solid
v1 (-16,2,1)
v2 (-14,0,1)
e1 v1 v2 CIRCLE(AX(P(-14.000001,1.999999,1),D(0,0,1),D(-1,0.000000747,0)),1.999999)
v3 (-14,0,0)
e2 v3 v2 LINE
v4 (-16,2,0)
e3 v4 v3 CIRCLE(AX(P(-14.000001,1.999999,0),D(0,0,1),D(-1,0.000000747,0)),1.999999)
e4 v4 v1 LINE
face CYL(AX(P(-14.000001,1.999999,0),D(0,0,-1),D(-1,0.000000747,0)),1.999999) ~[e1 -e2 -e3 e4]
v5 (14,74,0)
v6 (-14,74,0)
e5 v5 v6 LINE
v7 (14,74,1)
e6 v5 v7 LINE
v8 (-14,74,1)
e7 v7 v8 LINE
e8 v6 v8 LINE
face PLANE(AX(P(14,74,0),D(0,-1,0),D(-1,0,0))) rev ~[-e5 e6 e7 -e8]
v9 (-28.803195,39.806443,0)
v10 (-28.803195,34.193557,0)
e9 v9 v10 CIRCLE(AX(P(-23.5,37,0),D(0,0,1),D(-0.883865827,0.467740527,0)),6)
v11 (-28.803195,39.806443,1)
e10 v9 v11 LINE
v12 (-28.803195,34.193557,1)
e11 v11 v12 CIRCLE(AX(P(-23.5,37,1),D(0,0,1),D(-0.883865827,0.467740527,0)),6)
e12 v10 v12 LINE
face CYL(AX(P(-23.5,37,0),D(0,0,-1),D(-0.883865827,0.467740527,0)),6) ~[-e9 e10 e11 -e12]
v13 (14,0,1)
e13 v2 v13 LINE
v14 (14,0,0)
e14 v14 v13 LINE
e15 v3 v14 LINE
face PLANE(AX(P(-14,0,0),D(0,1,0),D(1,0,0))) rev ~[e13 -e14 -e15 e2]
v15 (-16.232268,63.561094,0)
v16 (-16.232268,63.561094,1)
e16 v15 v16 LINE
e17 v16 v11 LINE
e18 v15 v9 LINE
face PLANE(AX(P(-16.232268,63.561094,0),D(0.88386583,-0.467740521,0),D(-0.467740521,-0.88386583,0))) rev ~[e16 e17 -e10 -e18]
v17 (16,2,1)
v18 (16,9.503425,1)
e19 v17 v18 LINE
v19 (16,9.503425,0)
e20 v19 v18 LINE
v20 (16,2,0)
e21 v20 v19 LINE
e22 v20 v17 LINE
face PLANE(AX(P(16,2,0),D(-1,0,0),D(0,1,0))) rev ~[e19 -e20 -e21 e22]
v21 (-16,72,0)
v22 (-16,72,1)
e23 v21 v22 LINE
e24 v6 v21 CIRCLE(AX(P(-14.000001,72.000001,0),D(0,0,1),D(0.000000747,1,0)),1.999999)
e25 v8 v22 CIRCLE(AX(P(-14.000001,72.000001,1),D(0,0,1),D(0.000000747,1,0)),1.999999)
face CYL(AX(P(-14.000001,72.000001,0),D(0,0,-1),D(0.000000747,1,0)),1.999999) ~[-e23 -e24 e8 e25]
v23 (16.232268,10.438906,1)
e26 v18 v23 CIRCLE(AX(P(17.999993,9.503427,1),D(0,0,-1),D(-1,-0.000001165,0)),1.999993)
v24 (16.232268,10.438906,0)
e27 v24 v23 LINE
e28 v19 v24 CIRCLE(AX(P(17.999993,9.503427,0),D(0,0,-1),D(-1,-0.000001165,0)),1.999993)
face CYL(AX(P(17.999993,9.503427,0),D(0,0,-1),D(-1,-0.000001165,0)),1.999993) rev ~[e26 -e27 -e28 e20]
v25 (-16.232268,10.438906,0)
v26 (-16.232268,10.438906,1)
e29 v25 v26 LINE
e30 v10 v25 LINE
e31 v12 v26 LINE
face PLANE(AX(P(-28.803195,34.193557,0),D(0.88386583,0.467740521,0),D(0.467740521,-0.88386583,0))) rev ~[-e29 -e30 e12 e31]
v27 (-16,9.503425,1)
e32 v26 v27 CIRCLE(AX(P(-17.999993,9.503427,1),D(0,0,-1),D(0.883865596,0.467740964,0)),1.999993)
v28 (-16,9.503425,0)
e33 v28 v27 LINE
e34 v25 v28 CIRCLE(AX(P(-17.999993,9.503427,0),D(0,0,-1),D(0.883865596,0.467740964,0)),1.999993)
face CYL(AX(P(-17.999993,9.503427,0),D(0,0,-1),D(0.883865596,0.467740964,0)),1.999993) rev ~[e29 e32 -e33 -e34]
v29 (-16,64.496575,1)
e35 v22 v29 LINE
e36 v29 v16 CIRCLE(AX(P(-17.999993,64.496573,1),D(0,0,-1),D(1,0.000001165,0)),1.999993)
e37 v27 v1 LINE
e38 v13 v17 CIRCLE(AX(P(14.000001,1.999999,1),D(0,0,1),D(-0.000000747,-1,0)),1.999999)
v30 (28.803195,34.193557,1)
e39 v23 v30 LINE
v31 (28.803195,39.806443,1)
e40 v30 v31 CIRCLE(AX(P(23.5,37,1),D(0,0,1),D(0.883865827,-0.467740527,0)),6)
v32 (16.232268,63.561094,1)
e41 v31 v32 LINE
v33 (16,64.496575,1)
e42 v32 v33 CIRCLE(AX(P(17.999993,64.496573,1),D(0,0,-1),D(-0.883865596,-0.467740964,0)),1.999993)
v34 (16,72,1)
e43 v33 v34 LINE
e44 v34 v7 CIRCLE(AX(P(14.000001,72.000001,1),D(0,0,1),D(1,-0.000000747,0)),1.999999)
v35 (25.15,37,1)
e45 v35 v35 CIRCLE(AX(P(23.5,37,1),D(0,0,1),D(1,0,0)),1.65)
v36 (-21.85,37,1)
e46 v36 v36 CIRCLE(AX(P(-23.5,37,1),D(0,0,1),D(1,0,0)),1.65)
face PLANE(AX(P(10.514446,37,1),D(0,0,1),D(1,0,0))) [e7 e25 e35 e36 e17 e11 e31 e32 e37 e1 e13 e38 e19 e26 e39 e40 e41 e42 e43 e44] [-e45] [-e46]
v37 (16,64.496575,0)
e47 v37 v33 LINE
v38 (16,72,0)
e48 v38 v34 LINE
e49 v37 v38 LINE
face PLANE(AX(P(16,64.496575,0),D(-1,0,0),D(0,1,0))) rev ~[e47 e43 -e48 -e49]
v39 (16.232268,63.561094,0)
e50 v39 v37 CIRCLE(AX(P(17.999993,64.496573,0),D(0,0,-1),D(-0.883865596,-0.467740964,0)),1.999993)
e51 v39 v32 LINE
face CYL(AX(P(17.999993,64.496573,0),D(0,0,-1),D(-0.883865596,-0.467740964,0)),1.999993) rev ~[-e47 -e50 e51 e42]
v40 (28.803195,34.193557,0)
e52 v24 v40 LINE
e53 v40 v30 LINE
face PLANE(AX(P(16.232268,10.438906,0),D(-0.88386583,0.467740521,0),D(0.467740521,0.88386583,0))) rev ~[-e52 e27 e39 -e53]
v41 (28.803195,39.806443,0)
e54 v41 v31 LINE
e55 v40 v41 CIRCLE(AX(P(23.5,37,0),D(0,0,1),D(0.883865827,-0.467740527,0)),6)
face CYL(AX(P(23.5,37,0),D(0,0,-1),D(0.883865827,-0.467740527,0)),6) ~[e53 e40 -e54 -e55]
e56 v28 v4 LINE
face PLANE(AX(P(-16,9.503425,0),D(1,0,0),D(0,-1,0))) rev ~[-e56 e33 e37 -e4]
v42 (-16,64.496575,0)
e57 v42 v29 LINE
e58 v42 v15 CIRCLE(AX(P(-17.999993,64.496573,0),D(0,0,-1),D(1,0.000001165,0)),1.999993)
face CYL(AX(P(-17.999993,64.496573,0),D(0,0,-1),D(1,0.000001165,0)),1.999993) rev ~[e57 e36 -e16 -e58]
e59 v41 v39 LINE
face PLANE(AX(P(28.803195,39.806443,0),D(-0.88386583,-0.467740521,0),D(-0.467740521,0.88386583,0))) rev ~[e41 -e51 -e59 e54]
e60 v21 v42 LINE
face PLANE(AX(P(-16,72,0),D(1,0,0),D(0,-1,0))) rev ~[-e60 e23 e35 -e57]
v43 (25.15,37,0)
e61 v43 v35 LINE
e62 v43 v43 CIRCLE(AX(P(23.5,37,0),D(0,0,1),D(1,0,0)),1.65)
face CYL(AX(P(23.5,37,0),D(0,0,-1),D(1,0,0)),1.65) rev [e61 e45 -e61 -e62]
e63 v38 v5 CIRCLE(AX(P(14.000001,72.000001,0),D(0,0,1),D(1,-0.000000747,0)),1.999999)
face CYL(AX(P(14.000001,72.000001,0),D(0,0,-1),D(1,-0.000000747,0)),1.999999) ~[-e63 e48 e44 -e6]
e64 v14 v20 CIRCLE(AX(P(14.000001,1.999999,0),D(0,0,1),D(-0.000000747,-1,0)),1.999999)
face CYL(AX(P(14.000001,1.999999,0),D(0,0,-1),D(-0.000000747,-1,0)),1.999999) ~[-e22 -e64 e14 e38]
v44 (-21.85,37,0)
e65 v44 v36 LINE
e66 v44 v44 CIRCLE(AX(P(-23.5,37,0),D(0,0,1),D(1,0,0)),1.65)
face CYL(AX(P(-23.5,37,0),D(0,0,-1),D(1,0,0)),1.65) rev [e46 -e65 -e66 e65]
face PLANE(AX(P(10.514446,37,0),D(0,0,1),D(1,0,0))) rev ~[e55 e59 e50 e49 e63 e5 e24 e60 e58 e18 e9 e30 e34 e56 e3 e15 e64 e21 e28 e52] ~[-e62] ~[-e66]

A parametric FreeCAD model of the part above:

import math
import FreeCAD as App
import Part
import Sketcher
from FreeCAD import Vector

doc = App.newDocument("Part")
body = doc.addObject("PartDesign::Body", "Body")

# Sketch on XY plane
sketch1 = doc.addObject("Sketcher::SketchObject", "Sketch")
body.addObject(sketch1)
sketch1.AttachmentSupport = (doc.XY_Plane, [""])
sketch1.MapMode = "FlatFace"
sketch1.addGeometry(Part.LineSegment(Vector(14, 74, 0), Vector(-14, 74, 0)), False)
sketch1.addGeometry(Part.ArcOfCircle(Part.Circle(Vector(-14.000001, 72.000001, 0), Vector(0, 0, 1), 1.999999), math.radians(89.999957), math.radians(180.000043)), False)
sketch1.addGeometry(Part.LineSegment(Vector(-16, 72, 0), Vector(-16, 64.496575, 0)), False)
sketch1.addGeometry(Part.ArcOfCircle(Part.Circle(Vector(-17.999993, 64.496573, 0), Vector(0, 0, 1), 1.999993), math.radians(-27.887757), math.radians(0.000067)), False)
sketch1.addGeometry(Part.LineSegment(Vector(-16.232268, 63.561094, 0), Vector(-28.803195, 39.806443, 0)), False)
sketch1.addGeometry(Part.ArcOfCircle(Part.Circle(Vector(-23.5, 37, 0), Vector(0, 0, 1), 6), math.radians(152.112271), math.radians(207.887729)), False)
sketch1.addGeometry(Part.LineSegment(Vector(-28.803195, 34.193557, 0), Vector(-16.232268, 10.438906, 0)), False)
sketch1.addGeometry(Part.ArcOfCircle(Part.Circle(Vector(-17.999993, 9.503427, 0), Vector(0, 0, 1), 1.999993), math.radians(-0.000067), math.radians(27.887757)), False)
sketch1.addGeometry(Part.LineSegment(Vector(-16, 9.503425, 0), Vector(-16, 2, 0)), False)
sketch1.addGeometry(Part.ArcOfCircle(Part.Circle(Vector(-14.000001, 1.999999, 0), Vector(0, 0, 1), 1.999999), math.radians(179.999957), math.radians(270.000043)), False)
sketch1.addGeometry(Part.LineSegment(Vector(-14, 0, 0), Vector(14, 0, 0)), False)
sketch1.addGeometry(Part.ArcOfCircle(Part.Circle(Vector(14.000001, 1.999999, 0), Vector(0, 0, 1), 1.999999), math.radians(-90.000043), math.radians(0.000043)), False)
sketch1.addGeometry(Part.LineSegment(Vector(16, 2, 0), Vector(16, 9.503425, 0)), False)
sketch1.addGeometry(Part.ArcOfCircle(Part.Circle(Vector(17.999993, 9.503427, 0), Vector(0, 0, 1), 1.999993), math.radians(152.112243), math.radians(180.000067)), False)
sketch1.addGeometry(Part.LineSegment(Vector(16.232268, 10.438906, 0), Vector(28.803195, 34.193557, 0)), False)
sketch1.addGeometry(Part.ArcOfCircle(Part.Circle(Vector(23.5, 37, 0), Vector(0, 0, 1), 6), math.radians(-27.887729), math.radians(27.887729)), False)
sketch1.addGeometry(Part.LineSegment(Vector(28.803195, 39.806443, 0), Vector(16.232268, 63.561094, 0)), False)
sketch1.addGeometry(Part.ArcOfCircle(Part.Circle(Vector(17.999993, 64.496573, 0), Vector(0, 0, 1), 1.999993), math.radians(179.999933), math.radians(207.887757)), False)
sketch1.addGeometry(Part.LineSegment(Vector(16, 64.496575, 0), Vector(16, 72, 0)), False)
sketch1.addGeometry(Part.ArcOfCircle(Part.Circle(Vector(14.000001, 72.000001, 0), Vector(0, 0, 1), 1.999999), math.radians(-0.000043), math.radians(90.000043)), False)
sketch1.addGeometry(Part.Circle(Vector(-23.5, 37, 0), Vector(0, 0, 1), 1.65), False)
sketch1.addGeometry(Part.Circle(Vector(23.5, 37, 0), Vector(0, 0, 1), 1.65), False)
sketch1.addConstraint(Sketcher.Constraint("Coincident", 0, 2, 1, 1))
sketch1.addConstraint(Sketcher.Constraint("Coincident", 1, 2, 2, 1))
sketch1.addConstraint(Sketcher.Constraint("Coincident", 2, 2, 3, 2))
sketch1.addConstraint(Sketcher.Constraint("Coincident", 3, 1, 4, 1))
sketch1.addConstraint(Sketcher.Constraint("Coincident", 4, 2, 5, 1))
sketch1.addConstraint(Sketcher.Constraint("Coincident", 5, 2, 6, 1))
sketch1.addConstraint(Sketcher.Constraint("Coincident", 6, 2, 7, 2))
sketch1.addConstraint(Sketcher.Constraint("Coincident", 7, 1, 8, 1))
sketch1.addConstraint(Sketcher.Constraint("Coincident", 8, 2, 9, 1))
sketch1.addConstraint(Sketcher.Constraint("Coincident", 9, 2, 10, 1))
sketch1.addConstraint(Sketcher.Constraint("Coincident", 10, 2, 11, 1))
sketch1.addConstraint(Sketcher.Constraint("Coincident", 11, 2, 12, 1))
sketch1.addConstraint(Sketcher.Constraint("Coincident", 12, 2, 13, 2))
sketch1.addConstraint(Sketcher.Constraint("Coincident", 13, 1, 14, 1))
sketch1.addConstraint(Sketcher.Constraint("Coincident", 14, 2, 15, 1))
sketch1.addConstraint(Sketcher.Constraint("Coincident", 15, 2, 16, 1))
sketch1.addConstraint(Sketcher.Constraint("Coincident", 16, 2, 17, 2))
sketch1.addConstraint(Sketcher.Constraint("Coincident", 17, 1, 18, 1))
sketch1.addConstraint(Sketcher.Constraint("Coincident", 18, 2, 19, 1))
sketch1.addConstraint(Sketcher.Constraint("Coincident", 19, 2, 0, 1))
sketch1.addConstraint(Sketcher.Constraint("Horizontal", 0))
sketch1.addConstraint(Sketcher.Constraint("Vertical", 2))
sketch1.addConstraint(Sketcher.Constraint("Vertical", 8))
sketch1.addConstraint(Sketcher.Constraint("Horizontal", 10))
sketch1.addConstraint(Sketcher.Constraint("Vertical", 12))
sketch1.addConstraint(Sketcher.Constraint("Vertical", 18))
sketch1.addConstraint(Sketcher.Constraint("Coincident", 20, 3, 5, 3))
sketch1.addConstraint(Sketcher.Constraint("Coincident", 21, 3, 15, 3))
sketch1.addConstraint(Sketcher.Constraint("PointOnObject", 9, 2, -1))
sketch1.addConstraint(Sketcher.Constraint("Radius", 1, 1.999999))
sketch1.addConstraint(Sketcher.Constraint("Radius", 5, 6.0))
sketch1.addConstraint(Sketcher.Constraint("Radius", 9, 1.999999))
sketch1.addConstraint(Sketcher.Constraint("Radius", 11, 1.999999))
sketch1.addConstraint(Sketcher.Constraint("Radius", 15, 6.0))
sketch1.addConstraint(Sketcher.Constraint("Radius", 19, 1.999999))
sketch1.addConstraint(Sketcher.Constraint("Diameter", 20, 3.3))
sketch1.addConstraint(Sketcher.Constraint("Diameter", 21, 3.3))
sketch1.addConstraint(Sketcher.Constraint("DistanceX", 0, 2, 0, 1, 28.0))
sketch1.addConstraint(Sketcher.Constraint("DistanceX", 10, 1, 10, 2, 28.0))
sketch1.addConstraint(Sketcher.Constraint("DistanceX", 1, 3, -1, 1, 14.000001))
sketch1.addConstraint(Sketcher.Constraint("DistanceY", -1, 1, 1, 3, 72.000001))
sketch1.addConstraint(Sketcher.Constraint("DistanceY", -1, 1, 5, 3, 37.0))
sketch1.addConstraint(Sketcher.Constraint("DistanceX", 9, 3, -1, 1, 14.000001))
sketch1.addConstraint(Sketcher.Constraint("DistanceX", -1, 1, 11, 3, 14.000001))
sketch1.addConstraint(Sketcher.Constraint("DistanceY", -1, 1, 15, 3, 37.0))
sketch1.addConstraint(Sketcher.Constraint("DistanceX", -1, 1, 19, 3, 14.000001))
sketch1.addConstraint(Sketcher.Constraint("DistanceX", 0, 2, -1, 1, 14.0))
sketch1.addConstraint(Sketcher.Constraint("DistanceY", -1, 1, 1, 2, 72.0))
sketch1.addConstraint(Sketcher.Constraint("DistanceY", -1, 1, 8, 2, 2.0))
sketch1.addConstraint(Sketcher.Constraint("DistanceX", 9, 2, -1, 1, 14.0))
sketch1.addConstraint(Sketcher.Constraint("DistanceY", -1, 1, 11, 2, 2.0))
sketch1.addConstraint(Sketcher.Constraint("DistanceY", -1, 1, 18, 2, 72.0))
sketch1.addConstraint(Sketcher.Constraint("DistanceX", 5, 3, 15, 3, 47.000001))
sketch1.addConstraint(Sketcher.Constraint("DistanceX", 5, 3, -1, 1, 23.5))
sketch1.addConstraint(Sketcher.Constraint("Radius", 3, 1.999993))
sketch1.addConstraint(Sketcher.Constraint("Radius", 7, 1.999993))
sketch1.addConstraint(Sketcher.Constraint("Radius", 13, 1.999993))
sketch1.addConstraint(Sketcher.Constraint("Radius", 17, 1.999993))
sketch1.addConstraint(Sketcher.Constraint("DistanceX", 4, 2, 3, 3, 10.803202))
sketch1.addConstraint(Sketcher.Constraint("DistanceX", 5, 2, 7, 3, 10.803202))
sketch1.addConstraint(Sketcher.Constraint("DistanceX", 13, 3, 14, 2, 10.803202))
sketch1.addConstraint(Sketcher.Constraint("DistanceX", 17, 3, 15, 2, 10.803202))
sketch1.addConstraint(Sketcher.Constraint("DistanceY", 2, 2, 2, 1, 7.503425))
sketch1.addConstraint(Sketcher.Constraint("DistanceY", 8, 2, 8, 1, 7.503425))
sketch1.addConstraint(Sketcher.Constraint("DistanceY", 12, 1, 12, 2, 7.503425))
sketch1.addConstraint(Sketcher.Constraint("DistanceY", 18, 1, 18, 2, 7.503425))
sketch1.addConstraint(Sketcher.Constraint("DistanceX", 6, 2, -1, 1, 16.232268))
sketch1.addConstraint(Sketcher.Constraint("DistanceX", -1, 1, 16, 2, 16.232268))
sketch1.addConstraint(Sketcher.Constraint("DistanceY", 3, 3, 1, 3, 7.503429))
sketch1.addConstraint(Sketcher.Constraint("DistanceY", 9, 3, 7, 3, 7.503429))
sketch1.addConstraint(Sketcher.Constraint("DistanceY", 11, 3, 13, 3, 7.503429))
sketch1.addConstraint(Sketcher.Constraint("DistanceY", 17, 3, 1, 3, 7.503429))
sketch1.addConstraint(Sketcher.Constraint("DistanceY", 3, 1, 2, 2, 0.935481))
sketch1.addConstraint(Sketcher.Constraint("DistanceY", 12, 2, 13, 1, 0.935481))
pad1 = doc.addObject("PartDesign::Pad", "Pad")
body.addObject(pad1)
pad1.Profile = sketch1
pad1.Length = 1

doc.recompute()
